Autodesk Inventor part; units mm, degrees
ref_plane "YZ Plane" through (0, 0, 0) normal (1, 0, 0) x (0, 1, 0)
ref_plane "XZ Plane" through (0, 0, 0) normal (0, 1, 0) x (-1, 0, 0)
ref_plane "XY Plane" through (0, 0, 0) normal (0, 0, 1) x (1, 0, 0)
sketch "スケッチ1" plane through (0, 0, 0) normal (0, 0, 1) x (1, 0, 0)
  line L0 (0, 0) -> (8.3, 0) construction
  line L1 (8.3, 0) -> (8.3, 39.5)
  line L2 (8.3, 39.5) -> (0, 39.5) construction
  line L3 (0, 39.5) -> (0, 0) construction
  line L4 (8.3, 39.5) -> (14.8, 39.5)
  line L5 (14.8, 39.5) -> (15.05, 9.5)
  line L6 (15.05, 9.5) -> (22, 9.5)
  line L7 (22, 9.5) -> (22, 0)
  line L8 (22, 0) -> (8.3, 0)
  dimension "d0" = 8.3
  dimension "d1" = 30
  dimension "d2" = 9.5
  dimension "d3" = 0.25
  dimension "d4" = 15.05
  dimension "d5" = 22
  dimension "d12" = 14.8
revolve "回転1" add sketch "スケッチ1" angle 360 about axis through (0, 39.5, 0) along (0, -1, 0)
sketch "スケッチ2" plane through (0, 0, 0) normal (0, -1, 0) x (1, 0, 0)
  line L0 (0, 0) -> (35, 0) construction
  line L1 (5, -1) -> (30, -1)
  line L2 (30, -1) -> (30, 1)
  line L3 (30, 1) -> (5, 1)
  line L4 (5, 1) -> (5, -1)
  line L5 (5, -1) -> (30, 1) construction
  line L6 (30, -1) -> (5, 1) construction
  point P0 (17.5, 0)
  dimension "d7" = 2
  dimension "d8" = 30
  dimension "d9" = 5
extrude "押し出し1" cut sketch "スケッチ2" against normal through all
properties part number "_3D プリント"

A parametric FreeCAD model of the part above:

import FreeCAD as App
import Part
import Sketcher

V = App.Vector


def add_polygon(sketch, points):
    """Adds a closed chain of lines whose ends are joined by coincident constraints."""
    first, n = sketch.GeometryCount, len(points)
    for a, b in zip(points, points[1:] + points[:1]):
        sketch.addGeometry(Part.LineSegment(App.Vector(*a, 0), App.Vector(*b, 0)), False)
    for i in range(n):
        sketch.addConstraint(Sketcher.Constraint("Coincident", first + i, 2, first + (i + 1) % n, 1))

doc = App.newDocument("Part")
body = doc.addObject("PartDesign::Body", "Body")

sketch1 = doc.addObject("Sketcher::SketchObject", "Sketch")
body.addObject(sketch1)
sketch1.AttachmentSupport = (doc.XY_Plane, [""])
sketch1.MapMode = "FlatFace"
add_polygon(sketch1, [(8, 40), (8, 0), (22, 0), (22, 10), (15, 10), (15, 40)])
sketch1.addConstraint([
    Sketcher.Constraint("Vertical", 0),
    Sketcher.Constraint("Horizontal", 1),
    Sketcher.Constraint("Vertical", 2),
    Sketcher.Constraint("Horizontal", 3),
    Sketcher.Constraint("Horizontal", 5),
    Sketcher.Constraint("PointOnObject", 0, 2, -1),
    Sketcher.Constraint("DistanceY", 2, 1, 2, 2, 9.5),
    Sketcher.Constraint("DistanceX", -1, 1, 1, 2, 22.0),
    Sketcher.Constraint("DistanceY", 3, 2, 4, 2, 30.0),
    Sketcher.Constraint("DistanceX", -1, 1, 0, 2, 8.3),
    Sketcher.Constraint("DistanceX", -1, 1, 4, 2, 14.8),
    Sketcher.Constraint("DistanceX", -1, 1, 3, 2, 15.05),
])
revolution = doc.addObject("PartDesign::Revolution", "Revolution")
body.addObject(revolution)
revolution.Profile = sketch1
revolution.ReferenceAxis = (sketch1, ["V_Axis"])
revolution.Angle = 360

sketch2 = doc.addObject("Sketcher::SketchObject", "Sketch001")
body.addObject(sketch2)
sketch2.AttachmentSupport = (doc.XZ_Plane, [""])
sketch2.MapMode = "FlatFace"
add_polygon(sketch2, [(5, 1), (5, -1), (30, -1), (30, 1)])
sketch2.addConstraint([
    Sketcher.Constraint("Vertical", 0),
    Sketcher.Constraint("Horizontal", 1),
    Sketcher.Constraint("Vertical", 2),
    Sketcher.Constraint("Horizontal", 3),
    Sketcher.Constraint("DistanceY", 0, 2, 0, 1, 2.0),
    Sketcher.Constraint("DistanceX", -1, 1, 0, 2, 5.0),
    Sketcher.Constraint("DistanceX", -1, 1, 1, 2, 30.0),
    Sketcher.Constraint("DistanceY", 0, 2, -1, 1, 1.0),
])
pocket1 = doc.addObject("PartDesign::Pocket", "Pocket")
body.addObject(pocket1)
pocket1.Profile = sketch2
pocket1.Type = "ThroughAll"

doc.recompute()
